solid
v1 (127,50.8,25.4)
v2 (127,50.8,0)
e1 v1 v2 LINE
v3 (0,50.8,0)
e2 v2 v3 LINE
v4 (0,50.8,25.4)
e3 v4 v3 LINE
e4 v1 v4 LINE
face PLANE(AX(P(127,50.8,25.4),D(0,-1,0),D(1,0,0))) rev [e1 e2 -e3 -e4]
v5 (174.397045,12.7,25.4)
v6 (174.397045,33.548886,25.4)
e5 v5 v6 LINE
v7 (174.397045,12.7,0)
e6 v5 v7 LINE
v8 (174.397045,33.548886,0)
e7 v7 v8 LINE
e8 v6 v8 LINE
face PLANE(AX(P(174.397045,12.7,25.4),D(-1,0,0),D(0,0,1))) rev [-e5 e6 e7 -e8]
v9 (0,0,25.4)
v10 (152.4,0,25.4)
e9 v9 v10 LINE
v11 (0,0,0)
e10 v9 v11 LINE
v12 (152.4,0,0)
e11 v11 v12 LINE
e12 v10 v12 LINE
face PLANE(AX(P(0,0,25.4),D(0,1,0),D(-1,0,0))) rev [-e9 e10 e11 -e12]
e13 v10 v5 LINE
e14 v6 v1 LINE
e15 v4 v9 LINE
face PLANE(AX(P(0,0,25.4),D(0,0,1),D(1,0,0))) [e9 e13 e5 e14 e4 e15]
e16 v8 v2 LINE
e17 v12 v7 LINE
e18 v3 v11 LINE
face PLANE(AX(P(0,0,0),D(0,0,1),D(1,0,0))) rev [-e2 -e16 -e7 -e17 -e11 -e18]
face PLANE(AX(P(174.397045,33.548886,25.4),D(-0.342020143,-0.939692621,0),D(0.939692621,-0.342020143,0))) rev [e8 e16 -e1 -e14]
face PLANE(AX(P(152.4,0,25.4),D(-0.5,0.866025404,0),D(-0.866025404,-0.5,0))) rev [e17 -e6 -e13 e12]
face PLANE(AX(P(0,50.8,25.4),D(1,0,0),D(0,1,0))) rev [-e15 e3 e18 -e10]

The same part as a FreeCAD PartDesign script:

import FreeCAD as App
import Part
import Sketcher

V = App.Vector
Q = App.Units.Quantity

doc = App.newDocument("Part")
body = doc.addObject("PartDesign::Body", "Body")

# Sketch on XY plane
sketch1 = body.newObject("Sketcher::SketchObject", "Sketch")
sketch1.AttachmentSupport = (doc.getObject("XY_Plane"), [""])
sketch1.MapMode = "FlatFace"
sketch1.addGeometry(Part.LineSegment(V(0, 0, 0), V(152, 0, 0)), False)
sketch1.addGeometry(Part.LineSegment(V(152, 0, 0), V(174, 13, 0)), False)
sketch1.addGeometry(Part.LineSegment(V(174, 13, 0), V(174, 34, 0)), False)
sketch1.addGeometry(Part.LineSegment(V(174, 34, 0), V(127, 51, 0)), False)
sketch1.addGeometry(Part.LineSegment(V(127, 51, 0), V(0, 51, 0)), False)
sketch1.addGeometry(Part.LineSegment(V(0, 51, 0), V(0, 0, 0)), False)
sketch1.addConstraint(Sketcher.Constraint("Coincident", 0, 2, 1, 1))
sketch1.addConstraint(Sketcher.Constraint("Coincident", 1, 2, 2, 1))
sketch1.addConstraint(Sketcher.Constraint("Coincident", 2, 2, 3, 1))
sketch1.addConstraint(Sketcher.Constraint("Coincident", 3, 2, 4, 1))
sketch1.addConstraint(Sketcher.Constraint("Coincident", 4, 2, 5, 1))
sketch1.addConstraint(Sketcher.Constraint("Coincident", 5, 2, 0, 1))
sketch1.addConstraint(Sketcher.Constraint("Horizontal", 0))
sketch1.addConstraint(Sketcher.Constraint("Vertical", 2))
sketch1.addConstraint(Sketcher.Constraint("Horizontal", 4))
sketch1.addConstraint(Sketcher.Constraint("Vertical", 5))
sketch1.addConstraint(Sketcher.Constraint("Coincident", 5, 2, -1, 1))
sketch1.addConstraint(Sketcher.Constraint("DistanceX", 0, 1, 0, 2, Q("6 in")))
sketch1.addConstraint(Sketcher.Constraint("DistanceX", 4, 2, 4, 1, Q("5 in")))
sketch1.addConstraint(Sketcher.Constraint("DistanceY", 5, 2, 5, 1, Q("2 in")))
sketch1.addConstraint(Sketcher.Constraint("Distance", 1, Q("1 in")))
sketch1.addConstraint(Sketcher.Constraint("Angle", 1, Q("30 deg")))
sketch1.addConstraint(Sketcher.Constraint("Angle", 3, Q("160 deg")))
pad1 = body.newObject("PartDesign::Pad", "Pad")
pad1.Profile = sketch1
pad1.Length = Q("1 in")

doc.recompute()
